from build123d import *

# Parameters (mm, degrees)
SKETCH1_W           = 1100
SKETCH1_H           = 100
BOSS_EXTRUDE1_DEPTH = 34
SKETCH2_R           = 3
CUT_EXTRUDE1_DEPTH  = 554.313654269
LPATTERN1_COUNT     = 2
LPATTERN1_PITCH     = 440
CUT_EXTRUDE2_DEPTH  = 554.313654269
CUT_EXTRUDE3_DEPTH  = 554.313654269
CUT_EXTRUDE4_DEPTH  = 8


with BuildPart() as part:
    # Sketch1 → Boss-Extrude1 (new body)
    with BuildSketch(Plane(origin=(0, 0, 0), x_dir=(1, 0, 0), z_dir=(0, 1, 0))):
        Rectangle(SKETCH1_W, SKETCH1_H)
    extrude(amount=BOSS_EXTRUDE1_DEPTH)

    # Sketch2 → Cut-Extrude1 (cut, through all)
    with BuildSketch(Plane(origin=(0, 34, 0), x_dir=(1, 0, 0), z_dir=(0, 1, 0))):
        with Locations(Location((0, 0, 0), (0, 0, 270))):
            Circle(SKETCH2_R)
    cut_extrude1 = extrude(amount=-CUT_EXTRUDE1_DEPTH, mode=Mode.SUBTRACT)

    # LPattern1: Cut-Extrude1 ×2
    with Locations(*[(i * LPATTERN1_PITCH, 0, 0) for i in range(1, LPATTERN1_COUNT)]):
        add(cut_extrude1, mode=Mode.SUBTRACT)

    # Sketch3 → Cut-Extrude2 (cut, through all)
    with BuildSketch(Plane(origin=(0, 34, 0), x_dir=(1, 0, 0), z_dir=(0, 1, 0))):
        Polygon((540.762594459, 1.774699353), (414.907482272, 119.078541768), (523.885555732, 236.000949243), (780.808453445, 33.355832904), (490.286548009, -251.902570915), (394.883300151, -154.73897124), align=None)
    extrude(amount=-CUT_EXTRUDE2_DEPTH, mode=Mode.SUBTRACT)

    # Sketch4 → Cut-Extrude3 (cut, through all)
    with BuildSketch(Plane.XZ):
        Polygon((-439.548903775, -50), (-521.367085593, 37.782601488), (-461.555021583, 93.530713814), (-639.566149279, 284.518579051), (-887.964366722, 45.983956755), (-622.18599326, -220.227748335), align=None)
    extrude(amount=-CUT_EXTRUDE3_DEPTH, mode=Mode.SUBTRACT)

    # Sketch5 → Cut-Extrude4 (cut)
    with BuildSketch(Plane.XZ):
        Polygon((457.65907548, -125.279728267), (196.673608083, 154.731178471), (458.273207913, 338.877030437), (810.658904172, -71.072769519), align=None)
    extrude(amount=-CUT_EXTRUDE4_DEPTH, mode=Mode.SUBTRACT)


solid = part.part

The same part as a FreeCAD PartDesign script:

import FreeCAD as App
import Part
import Sketcher

V = App.Vector


def add_polygon(sketch, points):
    """Adds a closed chain of lines whose ends are joined by coincident constraints."""
    first, n = sketch.GeometryCount, len(points)
    for a, b in zip(points, points[1:] + points[:1]):
        sketch.addGeometry(Part.LineSegment(App.Vector(*a, 0), App.Vector(*b, 0)), False)
    for i in range(n):
        sketch.addConstraint(Sketcher.Constraint("Coincident", first + i, 2, first + (i + 1) % n, 1))

doc = App.newDocument("Part")
body = doc.addObject("PartDesign::Body", "Body")

# Sketch on XZ plane
sketch1 = body.newObject("Sketcher::SketchObject", "Sketch")
sketch1.AttachmentSupport = (doc.getObject("XZ_Plane"), [""])
sketch1.MapMode = "FlatFace"
add_polygon(sketch1, [(-550, -50), (-550, 50), (550, 50), (550, -50)])  # lines 0-3
sketch1.addConstraint([
    Sketcher.Constraint("Vertical", 0),
    Sketcher.Constraint("Horizontal", 1),
    Sketcher.Constraint("Vertical", 2),
    Sketcher.Constraint("Horizontal", 3),
    Sketcher.Constraint("Symmetric", 0, 2, 2, 2, -1, 1),
    Sketcher.Constraint("DistanceX", 1, 1, 1, 2, 1100.0),
    Sketcher.Constraint("DistanceY", 0, 1, 0, 2, 100.0),
])
pad1 = body.newObject("PartDesign::Pad", "Pad")
pad1.Profile = sketch1
pad1.Length = 34
pad1.Reversed = True

# Sketch on XZ plane
sketch2 = body.newObject("Sketcher::SketchObject", "Sketch001")
sketch2.AttachmentSupport = (doc.getObject("XZ_Plane"), [""])
sketch2.MapMode = "FlatFace"
sketch2.AttachmentOffset = App.Placement(V(0, 0, -34), App.Rotation())
sketch2.addGeometry(Part.Circle(V(0, 0, 0), V(0, 0, 1), 3), False)
sketch2.addConstraint([
    Sketcher.Constraint("Coincident", 0, 3, -1, 1),
    Sketcher.Constraint("Diameter", 0, 6.0),
])
pocket1 = body.newObject("PartDesign::Pocket", "Pocket")
pocket1.Profile = sketch2
pocket1.Type = "ThroughAll"
pocket1.Reversed = True
doc.recompute()

linearpattern = body.newObject("PartDesign::LinearPattern", "LinearPattern")
linearpattern.Originals = [pocket1]
linearpattern.Direction = (doc.getObject("X_Axis"), [""])
linearpattern.Mode = "offset"
linearpattern.Offset = 440
linearpattern.Occurrences = 2
body.Tip = linearpattern

# Sketch on XZ plane
sketch3 = body.newObject("Sketcher::SketchObject", "Sketch002")
sketch3.AttachmentSupport = (doc.getObject("XZ_Plane"), [""])
sketch3.MapMode = "FlatFace"
sketch3.AttachmentOffset = App.Placement(V(0, 0, -34), App.Rotation())
add_polygon(sketch3, [(415, -119), (541, -2), (395, 155), (490, 252), (781, -33), (524, -236)])  # lines 0-5
sketch3.addConstraint([
    Sketcher.Constraint("Perpendicular", 0, 1),
    Sketcher.Constraint("Perpendicular", 2, 3),
    Sketcher.Constraint("Parallel", 1, 5),
    Sketcher.Constraint("Distance", 1, 213.956298),
    Sketcher.Constraint("DistanceY", 0, 2, -1, 1, 1.774699),
    Sketcher.Constraint("DistanceX", -1, 1, 1, 2, 394.8833),
    Sketcher.Constraint("DistanceY", 1, 2, 2, 2, 97.1636),
    Sketcher.Constraint("DistanceY", -1, 1, 1, 2, 154.738971),
    Sketcher.Constraint("DistanceX", -1, 1, 2, 2, 490.286548),
    Sketcher.Constraint("DistanceY", 4, 2, -1, 1, 236.000949),
    Sketcher.Constraint("DistanceY", 5, 2, -1, 1, 119.078542),
    Sketcher.Constraint("DistanceX", 0, 2, 3, 2, 240.045859),
])
pocket2 = body.newObject("PartDesign::Pocket", "Pocket001")
pocket2.Profile = sketch3
pocket2.Type = "ThroughAll"
pocket2.Reversed = True

# Sketch on XZ plane
sketch4 = body.newObject("Sketcher::SketchObject", "Sketch003")
sketch4.AttachmentSupport = (doc.getObject("XZ_Plane"), [""])
sketch4.MapMode = "FlatFace"
add_polygon(sketch4, [(-440, -50), (-521, 38), (-462, 94), (-640, 285), (-888, 46), (-622, -220)])  # lines 0-5
sketch4.addConstraint([
    Sketcher.Constraint("Perpendicular", 0, 1),
    Sketcher.Constraint("Perpendicular", 1, 2),
    Sketcher.Constraint("Perpendicular", 2, 5),
    Sketcher.Constraint("Distance", 0, 120.0),
    Sketcher.Constraint("DistanceY", 5, 2, -1, 1, 50.0),
    Sketcher.Constraint("Distance", 1, 81.763898),
    Sketcher.Constraint("DistanceY", -1, 1, 0, 2, 37.782601),
    Sketcher.Constraint("DistanceX", 1, 2, -1, 1, 461.555022),
    Sketcher.Constraint("DistanceX", 2, 2, -1, 1, 639.566149),
    Sketcher.Constraint("DistanceY", 4, 2, -1, 1, 220.227748),
    Sketcher.Constraint("DistanceX", 3, 2, 0, 2, 366.597281),
    Sketcher.Constraint("Distance", 3, 344.384147),
])
pocket3 = body.newObject("PartDesign::Pocket", "Pocket002")
pocket3.Profile = sketch4
pocket3.Type = "ThroughAll"

# Sketch on XZ plane
sketch5 = body.newObject("Sketcher::SketchObject", "Sketch004")
sketch5.AttachmentSupport = (doc.getObject("XZ_Plane"), [""])
sketch5.MapMode = "FlatFace"
add_polygon(sketch5, [(197, 155), (458, -125), (811, -71), (458, 339)])  # lines 0-3
sketch5.addConstraint([
    Sketcher.Constraint("DistanceY", 1, 2, 2, 2, 409.9498),
    Sketcher.Constraint("DistanceX", 3, 2, 2, 2, 261.5996),
    Sketcher.Constraint("Distance", 1, 357.137611),
    Sketcher.Constraint("Distance", 3, 319.912559),
    Sketcher.Constraint("DistanceY", 0, 2, -1, 1, 125.279728),
    Sketcher.Constraint("DistanceY", 1, 2, -1, 1, 71.07277),
    Sketcher.Constraint("DistanceX", -1, 1, 3, 2, 196.673608),
    Sketcher.Constraint("Distance", 0, 382.778686),
])
pocket4 = body.newObject("PartDesign::Pocket", "Pocket003")
pocket4.Profile = sketch5
pocket4.Length = 8

doc.recompute()
